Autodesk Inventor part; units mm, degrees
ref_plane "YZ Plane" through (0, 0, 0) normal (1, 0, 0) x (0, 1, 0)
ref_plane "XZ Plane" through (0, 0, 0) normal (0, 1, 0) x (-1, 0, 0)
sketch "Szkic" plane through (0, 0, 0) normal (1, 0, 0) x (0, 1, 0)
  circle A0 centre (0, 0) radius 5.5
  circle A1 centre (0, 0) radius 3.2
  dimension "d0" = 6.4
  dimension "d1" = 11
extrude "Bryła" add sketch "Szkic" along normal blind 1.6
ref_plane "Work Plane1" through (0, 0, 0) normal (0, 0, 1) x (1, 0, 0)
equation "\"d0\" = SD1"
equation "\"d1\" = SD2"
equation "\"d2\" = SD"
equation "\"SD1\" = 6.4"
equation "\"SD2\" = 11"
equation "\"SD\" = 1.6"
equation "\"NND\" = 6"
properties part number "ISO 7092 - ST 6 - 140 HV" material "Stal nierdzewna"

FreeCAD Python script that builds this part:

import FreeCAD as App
import Part
import Sketcher

V = App.Vector
Q = App.Units.Quantity

doc = App.newDocument("Part")
body = doc.addObject("PartDesign::Body", "Body")

sketch1 = body.newObject("Sketcher::SketchObject", "Sketch")
sketch1.AttachmentSupport = (doc.getObject("YZ_Plane"), [""])
sketch1.MapMode = "FlatFace"
sketch1.addGeometry([
    Part.Circle(V(0, 0, 0), V(0, 0, 1), 5.5),
    Part.Circle(V(0, 0, 0), V(0, 0, 1), 3.2),
], False)
sketch1.addConstraint([
    Sketcher.Constraint("Coincident", 0, 3, -1, 1),
    Sketcher.Constraint("Coincident", 1, 3, -1, 1),
    Sketcher.Constraint("Diameter", 0, Q("11 mm")),
    Sketcher.Constraint("Diameter", 1, Q("6.4 mm")),
])
pad1 = body.newObject("PartDesign::Pad", "Pad")
pad1.Profile = sketch1
pad1.Length = 1.6

doc.recompute()
